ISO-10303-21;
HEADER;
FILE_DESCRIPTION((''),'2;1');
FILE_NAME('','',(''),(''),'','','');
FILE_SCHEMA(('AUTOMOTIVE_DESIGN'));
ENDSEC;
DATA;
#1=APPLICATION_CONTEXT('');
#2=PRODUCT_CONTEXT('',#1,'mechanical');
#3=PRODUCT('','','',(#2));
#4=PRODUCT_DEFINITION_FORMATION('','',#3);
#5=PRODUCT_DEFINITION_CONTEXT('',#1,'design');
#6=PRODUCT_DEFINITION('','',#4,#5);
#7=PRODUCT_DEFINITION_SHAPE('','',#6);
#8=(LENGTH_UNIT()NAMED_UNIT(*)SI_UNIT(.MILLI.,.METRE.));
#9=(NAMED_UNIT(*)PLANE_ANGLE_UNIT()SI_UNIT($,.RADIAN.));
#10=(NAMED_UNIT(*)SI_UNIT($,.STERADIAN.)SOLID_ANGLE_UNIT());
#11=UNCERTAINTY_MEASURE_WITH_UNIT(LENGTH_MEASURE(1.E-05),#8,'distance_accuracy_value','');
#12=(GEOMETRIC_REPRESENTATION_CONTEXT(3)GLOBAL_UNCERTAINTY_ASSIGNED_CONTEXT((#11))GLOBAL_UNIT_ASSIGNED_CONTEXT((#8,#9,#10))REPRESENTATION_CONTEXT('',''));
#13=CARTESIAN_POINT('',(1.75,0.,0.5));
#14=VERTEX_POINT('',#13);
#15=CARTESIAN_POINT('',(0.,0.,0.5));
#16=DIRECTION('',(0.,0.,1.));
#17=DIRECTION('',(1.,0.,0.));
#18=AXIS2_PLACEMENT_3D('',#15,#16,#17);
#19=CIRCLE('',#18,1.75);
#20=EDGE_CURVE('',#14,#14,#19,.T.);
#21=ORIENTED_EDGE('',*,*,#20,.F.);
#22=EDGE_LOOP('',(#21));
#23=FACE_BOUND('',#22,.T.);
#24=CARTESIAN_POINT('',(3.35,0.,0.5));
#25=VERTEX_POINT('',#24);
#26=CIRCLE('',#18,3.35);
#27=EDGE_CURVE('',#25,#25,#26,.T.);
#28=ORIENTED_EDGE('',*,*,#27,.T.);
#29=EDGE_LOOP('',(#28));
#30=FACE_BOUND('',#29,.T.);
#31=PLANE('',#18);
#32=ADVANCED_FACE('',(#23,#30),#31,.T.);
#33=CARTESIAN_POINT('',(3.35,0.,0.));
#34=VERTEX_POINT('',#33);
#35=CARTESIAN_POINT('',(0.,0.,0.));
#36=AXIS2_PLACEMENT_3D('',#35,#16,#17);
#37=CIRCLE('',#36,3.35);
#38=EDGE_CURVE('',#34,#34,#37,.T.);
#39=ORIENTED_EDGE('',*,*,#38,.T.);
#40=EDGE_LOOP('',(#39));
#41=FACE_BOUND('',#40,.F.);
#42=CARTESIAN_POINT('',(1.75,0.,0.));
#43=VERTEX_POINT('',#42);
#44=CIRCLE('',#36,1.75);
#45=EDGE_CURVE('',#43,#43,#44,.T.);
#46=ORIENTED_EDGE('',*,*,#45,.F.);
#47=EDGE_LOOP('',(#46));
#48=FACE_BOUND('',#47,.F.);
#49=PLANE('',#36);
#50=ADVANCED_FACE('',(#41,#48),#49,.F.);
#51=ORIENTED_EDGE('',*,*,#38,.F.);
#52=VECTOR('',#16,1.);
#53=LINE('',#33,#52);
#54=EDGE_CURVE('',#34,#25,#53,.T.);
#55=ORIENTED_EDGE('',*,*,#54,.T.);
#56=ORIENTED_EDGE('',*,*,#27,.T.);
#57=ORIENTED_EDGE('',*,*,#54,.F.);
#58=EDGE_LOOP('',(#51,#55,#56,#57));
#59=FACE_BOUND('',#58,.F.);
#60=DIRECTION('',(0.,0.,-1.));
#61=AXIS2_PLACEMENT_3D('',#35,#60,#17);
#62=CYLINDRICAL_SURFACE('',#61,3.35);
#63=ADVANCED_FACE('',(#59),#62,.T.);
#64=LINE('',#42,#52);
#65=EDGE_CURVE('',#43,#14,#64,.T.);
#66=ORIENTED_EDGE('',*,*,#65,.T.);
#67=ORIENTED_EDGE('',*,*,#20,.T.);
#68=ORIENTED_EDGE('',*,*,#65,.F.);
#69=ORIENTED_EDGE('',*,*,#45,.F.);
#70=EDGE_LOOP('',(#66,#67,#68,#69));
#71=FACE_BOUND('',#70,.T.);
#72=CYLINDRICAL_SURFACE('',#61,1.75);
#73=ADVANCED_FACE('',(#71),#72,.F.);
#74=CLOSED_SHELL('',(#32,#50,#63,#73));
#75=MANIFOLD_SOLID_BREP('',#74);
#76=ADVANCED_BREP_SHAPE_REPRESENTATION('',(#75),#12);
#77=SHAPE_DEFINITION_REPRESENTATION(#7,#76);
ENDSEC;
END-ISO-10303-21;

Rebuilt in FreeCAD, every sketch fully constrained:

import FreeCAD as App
import Part
import Sketcher
from FreeCAD import Vector
Q = App.Units.Quantity

doc = App.newDocument("Part")
body = doc.addObject("PartDesign::Body", "Body")

sketch1 = body.newObject("Sketcher::SketchObject", "Sketch")
sketch1.AttachmentSupport = (doc.getObject("XY_Plane"), [""])
sketch1.MapMode = "FlatFace"
sketch1.addGeometry([
    Part.Circle(Vector(0, 0, 0), Vector(0, 0, 1), 3.4),
    Part.Circle(Vector(0, 0, 0), Vector(0, 0, 1), 1.8),
], False)
sketch1.addConstraint([
    Sketcher.Constraint("Coincident", 0, 3, -1, 1),
    Sketcher.Constraint("Coincident", 1, 3, -1, 1),
    Sketcher.Constraint("Diameter", 0, Q("6.7 mm")),
    Sketcher.Constraint("Diameter", 1, Q("3.5 mm")),
])
pad1 = body.newObject("PartDesign::Pad", "Pad")
pad1.Profile = sketch1
pad1.Length = 0.5

doc.recompute()
